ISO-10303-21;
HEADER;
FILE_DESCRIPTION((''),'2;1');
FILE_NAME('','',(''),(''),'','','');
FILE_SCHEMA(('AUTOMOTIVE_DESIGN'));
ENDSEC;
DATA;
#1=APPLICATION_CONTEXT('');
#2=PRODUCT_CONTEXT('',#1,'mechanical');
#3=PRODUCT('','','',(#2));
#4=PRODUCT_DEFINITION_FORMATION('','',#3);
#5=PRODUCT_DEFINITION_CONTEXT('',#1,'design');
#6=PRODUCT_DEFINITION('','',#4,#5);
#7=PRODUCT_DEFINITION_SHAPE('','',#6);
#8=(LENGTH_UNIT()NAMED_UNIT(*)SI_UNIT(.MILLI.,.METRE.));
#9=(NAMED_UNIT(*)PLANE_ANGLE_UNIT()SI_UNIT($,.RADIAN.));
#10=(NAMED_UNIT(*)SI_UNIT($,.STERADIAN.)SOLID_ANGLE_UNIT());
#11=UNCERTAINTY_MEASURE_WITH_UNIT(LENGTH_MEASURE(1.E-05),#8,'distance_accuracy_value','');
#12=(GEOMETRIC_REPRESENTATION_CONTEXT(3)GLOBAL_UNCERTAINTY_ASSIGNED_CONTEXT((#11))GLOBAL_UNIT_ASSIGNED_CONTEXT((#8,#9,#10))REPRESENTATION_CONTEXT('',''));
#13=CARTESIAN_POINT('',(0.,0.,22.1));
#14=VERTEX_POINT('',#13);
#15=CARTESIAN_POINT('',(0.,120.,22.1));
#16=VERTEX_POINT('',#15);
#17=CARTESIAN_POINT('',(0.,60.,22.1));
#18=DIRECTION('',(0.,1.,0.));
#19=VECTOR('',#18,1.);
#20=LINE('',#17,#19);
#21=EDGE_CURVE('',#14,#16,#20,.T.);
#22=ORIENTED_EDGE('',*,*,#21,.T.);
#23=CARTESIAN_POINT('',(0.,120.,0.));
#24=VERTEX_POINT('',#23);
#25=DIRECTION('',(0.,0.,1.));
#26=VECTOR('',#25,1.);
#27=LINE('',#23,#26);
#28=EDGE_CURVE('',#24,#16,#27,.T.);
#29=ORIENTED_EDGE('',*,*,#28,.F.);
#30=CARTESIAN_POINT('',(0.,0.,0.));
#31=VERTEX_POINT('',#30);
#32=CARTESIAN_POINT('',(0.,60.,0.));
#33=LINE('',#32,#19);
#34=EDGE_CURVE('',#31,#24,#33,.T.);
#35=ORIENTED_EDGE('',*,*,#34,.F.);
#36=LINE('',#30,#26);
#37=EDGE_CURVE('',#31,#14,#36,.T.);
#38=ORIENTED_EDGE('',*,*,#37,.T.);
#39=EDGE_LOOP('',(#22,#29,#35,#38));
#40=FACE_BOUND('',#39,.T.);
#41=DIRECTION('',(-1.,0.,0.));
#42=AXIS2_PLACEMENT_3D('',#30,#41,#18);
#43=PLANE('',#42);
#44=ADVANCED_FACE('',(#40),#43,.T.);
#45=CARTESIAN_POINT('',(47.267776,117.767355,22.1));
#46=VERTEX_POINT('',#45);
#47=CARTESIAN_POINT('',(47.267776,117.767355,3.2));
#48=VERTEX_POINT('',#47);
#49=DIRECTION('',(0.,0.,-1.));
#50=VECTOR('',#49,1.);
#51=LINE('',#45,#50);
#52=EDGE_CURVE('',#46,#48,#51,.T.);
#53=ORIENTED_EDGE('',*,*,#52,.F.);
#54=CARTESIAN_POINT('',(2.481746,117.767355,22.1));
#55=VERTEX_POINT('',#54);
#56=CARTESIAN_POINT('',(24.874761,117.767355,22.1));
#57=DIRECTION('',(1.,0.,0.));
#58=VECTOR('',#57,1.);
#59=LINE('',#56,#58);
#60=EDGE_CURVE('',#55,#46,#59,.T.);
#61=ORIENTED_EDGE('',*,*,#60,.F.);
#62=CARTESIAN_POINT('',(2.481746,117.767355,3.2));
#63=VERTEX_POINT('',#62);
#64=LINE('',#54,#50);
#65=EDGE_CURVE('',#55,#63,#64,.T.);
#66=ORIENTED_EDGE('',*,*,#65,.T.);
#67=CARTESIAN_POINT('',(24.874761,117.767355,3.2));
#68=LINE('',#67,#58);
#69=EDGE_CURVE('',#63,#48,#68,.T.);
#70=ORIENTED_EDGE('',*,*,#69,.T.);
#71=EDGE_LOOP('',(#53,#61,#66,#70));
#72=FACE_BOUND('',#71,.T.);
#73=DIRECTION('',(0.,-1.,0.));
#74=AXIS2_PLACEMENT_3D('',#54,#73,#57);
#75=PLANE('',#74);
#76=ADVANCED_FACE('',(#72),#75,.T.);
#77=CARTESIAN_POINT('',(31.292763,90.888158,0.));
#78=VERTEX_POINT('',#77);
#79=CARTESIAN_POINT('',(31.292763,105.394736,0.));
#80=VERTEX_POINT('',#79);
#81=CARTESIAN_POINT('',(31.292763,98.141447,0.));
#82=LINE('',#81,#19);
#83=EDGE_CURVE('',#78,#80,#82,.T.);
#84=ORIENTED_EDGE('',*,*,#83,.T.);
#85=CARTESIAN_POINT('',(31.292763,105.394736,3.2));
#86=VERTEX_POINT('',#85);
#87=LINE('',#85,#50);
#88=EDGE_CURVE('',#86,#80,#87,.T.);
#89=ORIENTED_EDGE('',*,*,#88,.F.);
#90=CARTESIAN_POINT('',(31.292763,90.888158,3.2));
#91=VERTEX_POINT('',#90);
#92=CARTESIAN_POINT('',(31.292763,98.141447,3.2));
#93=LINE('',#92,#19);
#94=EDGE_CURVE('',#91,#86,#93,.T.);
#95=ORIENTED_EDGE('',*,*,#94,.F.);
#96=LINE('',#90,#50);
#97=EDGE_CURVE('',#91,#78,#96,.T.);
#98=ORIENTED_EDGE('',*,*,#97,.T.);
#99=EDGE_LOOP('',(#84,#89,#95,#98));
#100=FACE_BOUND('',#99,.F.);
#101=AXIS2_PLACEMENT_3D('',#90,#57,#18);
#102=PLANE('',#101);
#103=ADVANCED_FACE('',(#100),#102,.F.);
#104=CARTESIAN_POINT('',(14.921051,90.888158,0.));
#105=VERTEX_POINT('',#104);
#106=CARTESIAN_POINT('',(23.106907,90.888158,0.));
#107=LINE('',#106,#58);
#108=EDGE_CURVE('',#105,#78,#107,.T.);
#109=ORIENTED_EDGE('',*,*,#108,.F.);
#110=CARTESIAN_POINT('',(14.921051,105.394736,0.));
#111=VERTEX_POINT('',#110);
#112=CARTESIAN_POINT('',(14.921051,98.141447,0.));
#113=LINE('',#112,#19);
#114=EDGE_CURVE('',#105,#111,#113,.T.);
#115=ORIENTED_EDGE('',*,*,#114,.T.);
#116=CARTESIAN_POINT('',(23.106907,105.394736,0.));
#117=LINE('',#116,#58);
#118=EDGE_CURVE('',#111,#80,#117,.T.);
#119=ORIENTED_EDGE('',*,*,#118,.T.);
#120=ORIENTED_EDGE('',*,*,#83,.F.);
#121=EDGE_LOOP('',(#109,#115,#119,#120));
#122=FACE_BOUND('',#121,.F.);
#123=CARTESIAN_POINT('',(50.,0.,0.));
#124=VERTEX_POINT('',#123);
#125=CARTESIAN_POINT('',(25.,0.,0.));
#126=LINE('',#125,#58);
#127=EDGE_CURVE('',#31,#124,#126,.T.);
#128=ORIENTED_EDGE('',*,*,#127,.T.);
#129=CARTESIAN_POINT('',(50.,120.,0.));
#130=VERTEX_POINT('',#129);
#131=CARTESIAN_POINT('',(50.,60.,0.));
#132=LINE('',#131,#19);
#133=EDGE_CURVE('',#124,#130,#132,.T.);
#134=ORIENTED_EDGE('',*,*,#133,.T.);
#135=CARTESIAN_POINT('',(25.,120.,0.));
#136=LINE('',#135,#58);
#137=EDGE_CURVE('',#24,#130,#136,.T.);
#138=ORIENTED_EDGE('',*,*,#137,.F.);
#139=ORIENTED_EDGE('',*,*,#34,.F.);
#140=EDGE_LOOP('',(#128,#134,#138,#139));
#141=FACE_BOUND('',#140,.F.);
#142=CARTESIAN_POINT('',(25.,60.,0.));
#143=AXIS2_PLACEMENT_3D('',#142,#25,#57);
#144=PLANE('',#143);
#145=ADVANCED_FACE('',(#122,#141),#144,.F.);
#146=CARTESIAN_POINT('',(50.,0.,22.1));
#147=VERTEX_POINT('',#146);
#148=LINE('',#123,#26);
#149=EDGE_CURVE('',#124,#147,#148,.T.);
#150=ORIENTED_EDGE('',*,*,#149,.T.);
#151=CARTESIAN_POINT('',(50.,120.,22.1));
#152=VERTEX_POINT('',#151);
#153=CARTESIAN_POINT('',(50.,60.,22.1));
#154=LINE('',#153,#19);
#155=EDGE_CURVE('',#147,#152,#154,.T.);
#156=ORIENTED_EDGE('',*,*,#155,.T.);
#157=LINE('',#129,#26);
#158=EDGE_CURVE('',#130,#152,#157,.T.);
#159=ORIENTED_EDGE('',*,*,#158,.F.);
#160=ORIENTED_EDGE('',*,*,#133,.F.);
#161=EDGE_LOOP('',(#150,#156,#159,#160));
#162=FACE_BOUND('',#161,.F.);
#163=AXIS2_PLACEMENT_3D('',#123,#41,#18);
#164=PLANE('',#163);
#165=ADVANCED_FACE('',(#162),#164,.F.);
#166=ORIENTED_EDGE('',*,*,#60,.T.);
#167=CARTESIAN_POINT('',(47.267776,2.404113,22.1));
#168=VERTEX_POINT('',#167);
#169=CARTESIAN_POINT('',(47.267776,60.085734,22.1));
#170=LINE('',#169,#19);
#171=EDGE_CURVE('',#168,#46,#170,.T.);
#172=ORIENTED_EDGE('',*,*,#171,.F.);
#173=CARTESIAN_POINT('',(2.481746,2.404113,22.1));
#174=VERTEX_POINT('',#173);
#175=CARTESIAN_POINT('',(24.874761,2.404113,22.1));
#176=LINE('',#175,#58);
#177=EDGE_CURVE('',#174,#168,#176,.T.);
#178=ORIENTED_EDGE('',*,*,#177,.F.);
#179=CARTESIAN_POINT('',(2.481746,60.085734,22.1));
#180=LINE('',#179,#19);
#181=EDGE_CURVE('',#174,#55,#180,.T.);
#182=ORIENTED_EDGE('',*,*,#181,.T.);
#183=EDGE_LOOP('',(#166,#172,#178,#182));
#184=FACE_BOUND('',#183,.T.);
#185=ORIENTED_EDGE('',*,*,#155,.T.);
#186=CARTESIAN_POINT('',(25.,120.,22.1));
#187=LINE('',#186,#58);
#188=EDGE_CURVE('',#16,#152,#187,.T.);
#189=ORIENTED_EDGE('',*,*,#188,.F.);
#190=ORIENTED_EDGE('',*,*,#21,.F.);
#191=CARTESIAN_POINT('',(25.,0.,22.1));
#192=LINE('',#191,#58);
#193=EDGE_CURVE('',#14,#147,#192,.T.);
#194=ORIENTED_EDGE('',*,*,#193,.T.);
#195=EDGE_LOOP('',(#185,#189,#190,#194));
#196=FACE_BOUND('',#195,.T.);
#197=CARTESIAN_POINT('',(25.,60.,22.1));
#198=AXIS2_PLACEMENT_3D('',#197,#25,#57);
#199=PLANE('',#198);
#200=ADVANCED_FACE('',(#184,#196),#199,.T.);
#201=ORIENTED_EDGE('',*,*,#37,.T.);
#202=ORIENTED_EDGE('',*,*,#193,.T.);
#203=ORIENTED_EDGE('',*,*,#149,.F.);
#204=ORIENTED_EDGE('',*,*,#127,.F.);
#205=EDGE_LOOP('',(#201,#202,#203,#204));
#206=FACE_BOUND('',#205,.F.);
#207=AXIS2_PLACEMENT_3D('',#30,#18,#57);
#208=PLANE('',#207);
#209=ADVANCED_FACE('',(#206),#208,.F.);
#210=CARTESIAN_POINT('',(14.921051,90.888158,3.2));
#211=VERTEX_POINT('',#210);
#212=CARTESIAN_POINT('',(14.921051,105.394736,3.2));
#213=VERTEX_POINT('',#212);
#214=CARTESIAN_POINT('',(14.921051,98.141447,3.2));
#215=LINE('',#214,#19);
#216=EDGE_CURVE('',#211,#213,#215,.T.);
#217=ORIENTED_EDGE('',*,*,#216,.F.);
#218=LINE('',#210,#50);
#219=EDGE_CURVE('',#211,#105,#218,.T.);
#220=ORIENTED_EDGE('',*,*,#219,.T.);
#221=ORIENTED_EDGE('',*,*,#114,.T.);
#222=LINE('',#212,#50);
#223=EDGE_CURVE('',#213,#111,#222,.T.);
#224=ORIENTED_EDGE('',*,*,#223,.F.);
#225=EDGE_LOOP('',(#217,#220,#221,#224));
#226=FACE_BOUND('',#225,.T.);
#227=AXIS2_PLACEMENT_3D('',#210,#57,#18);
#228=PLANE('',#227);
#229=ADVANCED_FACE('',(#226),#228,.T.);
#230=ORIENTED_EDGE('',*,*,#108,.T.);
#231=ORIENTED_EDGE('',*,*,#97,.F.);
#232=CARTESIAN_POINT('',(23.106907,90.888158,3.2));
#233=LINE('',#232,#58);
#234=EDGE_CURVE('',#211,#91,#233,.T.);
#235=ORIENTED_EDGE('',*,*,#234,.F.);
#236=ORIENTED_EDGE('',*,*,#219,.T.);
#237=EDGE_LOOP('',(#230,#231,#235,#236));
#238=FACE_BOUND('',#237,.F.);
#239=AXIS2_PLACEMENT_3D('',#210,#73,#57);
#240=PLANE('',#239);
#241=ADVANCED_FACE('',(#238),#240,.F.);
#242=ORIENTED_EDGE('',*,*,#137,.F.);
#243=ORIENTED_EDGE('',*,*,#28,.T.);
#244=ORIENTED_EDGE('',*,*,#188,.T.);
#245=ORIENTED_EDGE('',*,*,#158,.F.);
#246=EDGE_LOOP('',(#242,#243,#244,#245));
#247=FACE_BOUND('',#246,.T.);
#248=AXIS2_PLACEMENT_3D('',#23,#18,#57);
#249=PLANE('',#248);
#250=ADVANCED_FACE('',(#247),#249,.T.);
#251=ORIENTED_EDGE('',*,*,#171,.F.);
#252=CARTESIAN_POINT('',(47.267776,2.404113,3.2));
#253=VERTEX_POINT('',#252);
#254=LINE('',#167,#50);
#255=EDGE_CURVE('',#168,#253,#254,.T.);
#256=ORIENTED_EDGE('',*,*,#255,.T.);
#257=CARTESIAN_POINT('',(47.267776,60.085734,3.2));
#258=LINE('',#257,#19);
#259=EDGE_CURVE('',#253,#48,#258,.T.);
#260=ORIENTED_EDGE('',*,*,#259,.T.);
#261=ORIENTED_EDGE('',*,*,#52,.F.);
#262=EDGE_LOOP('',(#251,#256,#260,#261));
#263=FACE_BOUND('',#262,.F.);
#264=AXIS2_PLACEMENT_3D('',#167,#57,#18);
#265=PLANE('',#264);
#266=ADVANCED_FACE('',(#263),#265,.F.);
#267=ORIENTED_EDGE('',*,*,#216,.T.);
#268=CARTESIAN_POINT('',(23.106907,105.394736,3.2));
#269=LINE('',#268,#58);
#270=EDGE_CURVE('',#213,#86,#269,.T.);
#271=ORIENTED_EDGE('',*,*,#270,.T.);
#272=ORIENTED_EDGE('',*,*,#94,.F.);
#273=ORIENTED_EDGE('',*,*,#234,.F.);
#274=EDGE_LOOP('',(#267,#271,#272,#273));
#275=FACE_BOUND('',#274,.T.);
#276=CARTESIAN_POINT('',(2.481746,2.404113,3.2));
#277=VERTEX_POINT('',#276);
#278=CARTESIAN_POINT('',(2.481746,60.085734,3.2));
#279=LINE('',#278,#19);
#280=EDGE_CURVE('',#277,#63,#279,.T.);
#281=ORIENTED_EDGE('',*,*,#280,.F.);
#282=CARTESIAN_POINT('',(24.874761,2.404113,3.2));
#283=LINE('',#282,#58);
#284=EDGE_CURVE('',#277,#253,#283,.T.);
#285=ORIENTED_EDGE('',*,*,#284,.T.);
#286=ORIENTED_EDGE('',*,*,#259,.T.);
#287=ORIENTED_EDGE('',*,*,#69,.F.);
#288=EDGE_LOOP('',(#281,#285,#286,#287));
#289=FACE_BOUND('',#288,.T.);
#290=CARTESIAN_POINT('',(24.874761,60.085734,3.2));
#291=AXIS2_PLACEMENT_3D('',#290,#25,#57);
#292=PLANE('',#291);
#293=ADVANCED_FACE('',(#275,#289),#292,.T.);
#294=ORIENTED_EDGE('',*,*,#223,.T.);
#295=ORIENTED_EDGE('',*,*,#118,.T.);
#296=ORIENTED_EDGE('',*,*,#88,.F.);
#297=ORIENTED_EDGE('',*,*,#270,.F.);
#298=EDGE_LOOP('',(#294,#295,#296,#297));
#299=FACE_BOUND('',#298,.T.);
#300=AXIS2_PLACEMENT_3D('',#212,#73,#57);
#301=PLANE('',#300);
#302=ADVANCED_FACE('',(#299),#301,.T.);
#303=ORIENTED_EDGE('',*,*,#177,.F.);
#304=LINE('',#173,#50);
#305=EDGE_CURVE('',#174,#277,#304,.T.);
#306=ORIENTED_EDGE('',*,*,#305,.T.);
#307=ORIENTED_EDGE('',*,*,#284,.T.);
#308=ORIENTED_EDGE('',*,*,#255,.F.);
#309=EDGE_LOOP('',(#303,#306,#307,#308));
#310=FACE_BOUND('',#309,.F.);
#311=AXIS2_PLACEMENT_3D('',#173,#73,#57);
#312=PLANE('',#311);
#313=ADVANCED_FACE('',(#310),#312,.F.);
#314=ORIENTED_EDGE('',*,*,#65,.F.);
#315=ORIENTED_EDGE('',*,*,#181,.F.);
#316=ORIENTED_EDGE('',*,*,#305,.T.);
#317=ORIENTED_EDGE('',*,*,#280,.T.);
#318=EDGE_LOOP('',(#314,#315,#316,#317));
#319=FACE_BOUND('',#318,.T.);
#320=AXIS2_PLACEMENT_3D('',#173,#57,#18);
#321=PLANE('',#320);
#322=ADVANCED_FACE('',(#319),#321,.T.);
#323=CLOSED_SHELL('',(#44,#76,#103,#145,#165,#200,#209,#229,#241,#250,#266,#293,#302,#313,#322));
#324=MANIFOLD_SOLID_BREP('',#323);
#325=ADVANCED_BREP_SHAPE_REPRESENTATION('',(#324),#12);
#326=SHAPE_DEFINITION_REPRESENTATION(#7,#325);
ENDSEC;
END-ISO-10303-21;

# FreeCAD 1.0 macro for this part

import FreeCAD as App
import Part
import Sketcher

V = App.Vector

doc = App.newDocument("Part")
params = doc.addObject("Spreadsheet::Sheet", "Params")
for row, (alias, value) in enumerate([
    ("sketch1_width", "50 mm"),
    ("sketch1_height", "120 mm"),
    ("pad1_length", "22.1 mm"),
    ("pocket1_length", "18.9 mm"),
], start=1):
    params.set(f"A{row}", alias)
    params.set(f"B{row}", "=" + value)
    params.setAlias(f"B{row}", alias)

body = doc.addObject("PartDesign::Body", "Body")

# Sketch on XY plane
sketch1 = body.newObject("Sketcher::SketchObject", "Sketch")
sketch1.AttachmentSupport = (doc.getObject("XY_Plane"), [""])
sketch1.MapMode = "FlatFace"
sketch1.addGeometry([
    Part.LineSegment(V(0, 120, 0), V(0, 0, 0)),
    Part.LineSegment(V(0, 0, 0), V(50, 0, 0)),
    Part.LineSegment(V(50, 0, 0), V(50, 120, 0)),
    Part.LineSegment(V(50, 120, 0), V(0, 120, 0)),
], False)
sketch1.addConstraint([
    Sketcher.Constraint("Coincident", 0, 2, 1, 1),
    Sketcher.Constraint("Coincident", 1, 2, 2, 1),
    Sketcher.Constraint("Coincident", 2, 2, 3, 1),
    Sketcher.Constraint("Coincident", 3, 2, 0, 1),
    Sketcher.Constraint("Vertical", 0),
    Sketcher.Constraint("Horizontal", 1),
    Sketcher.Constraint("Vertical", 2),
    Sketcher.Constraint("Horizontal", 3),
    Sketcher.Constraint("Coincident", 0, 2, -1, 1),
    Sketcher.Constraint("DistanceX", 1, 1, 1, 2, 50.0),
    Sketcher.Constraint("DistanceY", 0, 2, 0, 1, 120.0),
])
sketch1.setExpression("Constraints[9]", "Params.sketch1_width")
sketch1.setExpression("Constraints[10]", "Params.sketch1_height")
pad1 = body.newObject("PartDesign::Pad", "Pad")
pad1.Profile = sketch1
pad1.setExpression("Length", "Params.pad1_length")

# Sketch on XY plane
sketch2 = body.newObject("Sketcher::SketchObject", "Sketch001")
sketch2.AttachmentSupport = (doc.getObject("XY_Plane"), [""])
sketch2.MapMode = "FlatFace"
sketch2.AttachmentOffset = App.Placement(V(0, 0, 22.1), App.Rotation())
sketch2.addGeometry([
    Part.LineSegment(V(2, 118, 0), V(2, 2, 0)),
    Part.LineSegment(V(2, 2, 0), V(47, 2, 0)),
    Part.LineSegment(V(47, 2, 0), V(47, 118, 0)),
    Part.LineSegment(V(47, 118, 0), V(2, 118, 0)),
], False)
sketch2.addConstraint([
    Sketcher.Constraint("Coincident", 0, 2, 1, 1),
    Sketcher.Constraint("Coincident", 1, 2, 2, 1),
    Sketcher.Constraint("Coincident", 2, 2, 3, 1),
    Sketcher.Constraint("Coincident", 3, 2, 0, 1),
    Sketcher.Constraint("Vertical", 0),
    Sketcher.Constraint("Horizontal", 1),
    Sketcher.Constraint("Vertical", 2),
    Sketcher.Constraint("Horizontal", 3),
    Sketcher.Constraint("DistanceX", 1, 1, 1, 2, 44.786031),
    Sketcher.Constraint("DistanceY", 0, 2, 0, 1, 115.363243),
    Sketcher.Constraint("DistanceX", -1, 1, 0, 2, 2.481746),
    Sketcher.Constraint("DistanceY", -1, 1, 0, 2, 2.404113),
])
pocket1 = body.newObject("PartDesign::Pocket", "Pocket")
pocket1.Profile = sketch2
pocket1.setExpression("Length", "Params.pocket1_length")

# Sketch on XY plane
sketch3 = body.newObject("Sketcher::SketchObject", "Sketch002")
sketch3.AttachmentSupport = (doc.getObject("XY_Plane"), [""])
sketch3.MapMode = "FlatFace"
sketch3.AttachmentOffset = App.Placement(V(0, 0, 3.2), App.Rotation())
sketch3.addGeometry([
    Part.LineSegment(V(15, 105, 0), V(15, 91, 0)),
    Part.LineSegment(V(15, 91, 0), V(31, 91, 0)),
    Part.LineSegment(V(31, 91, 0), V(31, 105, 0)),
    Part.LineSegment(V(31, 105, 0), V(15, 105, 0)),
], False)
sketch3.addConstraint([
    Sketcher.Constraint("Coincident", 0, 2, 1, 1),
    Sketcher.Constraint("Coincident", 1, 2, 2, 1),
    Sketcher.Constraint("Coincident", 2, 2, 3, 1),
    Sketcher.Constraint("Coincident", 3, 2, 0, 1),
    Sketcher.Constraint("Vertical", 0),
    Sketcher.Constraint("Horizontal", 1),
    Sketcher.Constraint("Vertical", 2),
    Sketcher.Constraint("Horizontal", 3),
    Sketcher.Constraint("DistanceY", 0, 2, 0, 1, 14.506579),
    Sketcher.Constraint("DistanceX", 1, 1, 1, 2, 16.371712),
    Sketcher.Constraint("DistanceX", -1, 1, 0, 2, 14.921051),
    Sketcher.Constraint("DistanceY", -1, 1, 0, 2, 90.888158),
])
pocket2 = body.newObject("PartDesign::Pocket", "Pocket001")
pocket2.Profile = sketch3
pocket2.Type = "ThroughAll"

doc.recompute()
